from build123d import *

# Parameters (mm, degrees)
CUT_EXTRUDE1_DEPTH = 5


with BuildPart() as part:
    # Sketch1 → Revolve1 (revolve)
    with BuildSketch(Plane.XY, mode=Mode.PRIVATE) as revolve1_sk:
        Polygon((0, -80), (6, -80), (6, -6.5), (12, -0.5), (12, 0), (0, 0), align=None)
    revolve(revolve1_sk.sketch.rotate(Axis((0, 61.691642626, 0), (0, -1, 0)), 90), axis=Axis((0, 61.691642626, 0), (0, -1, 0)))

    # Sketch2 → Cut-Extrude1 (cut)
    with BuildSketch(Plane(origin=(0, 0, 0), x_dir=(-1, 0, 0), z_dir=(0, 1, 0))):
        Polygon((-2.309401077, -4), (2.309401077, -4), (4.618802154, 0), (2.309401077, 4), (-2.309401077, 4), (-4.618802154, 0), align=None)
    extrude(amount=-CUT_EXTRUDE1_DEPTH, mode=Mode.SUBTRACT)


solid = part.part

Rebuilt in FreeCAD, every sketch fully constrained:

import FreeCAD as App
import Part
import Sketcher
Q = App.Units.Quantity


def add_polygon(sketch, points):
    """Adds a closed chain of lines whose ends are joined by coincident constraints."""
    first, n = sketch.GeometryCount, len(points)
    for a, b in zip(points, points[1:] + points[:1]):
        sketch.addGeometry(Part.LineSegment(App.Vector(*a, 0), App.Vector(*b, 0)), False)
    for i in range(n):
        sketch.addConstraint(Sketcher.Constraint("Coincident", first + i, 2, first + (i + 1) % n, 1))

doc = App.newDocument("Part")
params = doc.addObject("Spreadsheet::Sheet", "Params")
for row, (alias, value) in enumerate([
    ("sketch1_width", "6 mm"),
    ("sketch1_width2", "12 mm"),
    ("sketch1_height", "80 mm"),
    ("sketch1_height2", "73.5 mm"),
    ("revolution_angle", "360 deg"),
    ("pocket1_length", "5 mm"),
], start=1):
    params.set(f"A{row}", alias)
    params.set(f"B{row}", "=" + value)
    params.setAlias(f"B{row}", alias)

body = doc.addObject("PartDesign::Body", "Body")

# Sketch on XY plane
sketch1 = doc.addObject("Sketcher::SketchObject", "Sketch")
body.addObject(sketch1)
sketch1.AttachmentSupport = (doc.XY_Plane, [""])
sketch1.MapMode = "FlatFace"
add_polygon(sketch1, [(0, -80), (6, -80), (6, -6.5), (12, -0.5), (12, 0), (0, 0)])  # lines 0-5
sketch1.addConstraint(Sketcher.Constraint("Horizontal", 0))
sketch1.addConstraint(Sketcher.Constraint("Vertical", 1))
sketch1.addConstraint(Sketcher.Constraint("Vertical", 3))
sketch1.addConstraint(Sketcher.Constraint("Horizontal", 4))
sketch1.addConstraint(Sketcher.Constraint("Vertical", 5))
sketch1.addConstraint(Sketcher.Constraint("Coincident", 4, 2, -1, 1))
sketch1.addConstraint(Sketcher.Constraint("DistanceX", 0, 1, 0, 2, Q("6 mm")))
sketch1.addConstraint(Sketcher.Constraint("DistanceX", 4, 2, 4, 1, Q("12 mm")))
sketch1.addConstraint(Sketcher.Constraint("DistanceY", 5, 2, 5, 1, Q("80 mm")))
sketch1.addConstraint(Sketcher.Constraint("Angle", 2, Q("45 deg")))
sketch1.addConstraint(Sketcher.Constraint("DistanceY", 1, 1, 1, 2, Q("73.5 mm")))
sketch1.setExpression("Constraints[12]", "Params.sketch1_width")
sketch1.setExpression("Constraints[13]", "Params.sketch1_width2")
sketch1.setExpression("Constraints[14]", "Params.sketch1_height")
sketch1.setExpression("Constraints[16]", "Params.sketch1_height2")
revolution = doc.addObject("PartDesign::Revolution", "Revolution")
body.addObject(revolution)
revolution.Profile = sketch1
revolution.ReferenceAxis = (sketch1, ["V_Axis"])
revolution.setExpression("Angle", "Params.revolution_angle")

# Sketch on XZ plane
sketch2 = doc.addObject("Sketcher::SketchObject", "Sketch001")
body.addObject(sketch2)
sketch2.AttachmentSupport = (doc.XZ_Plane, [""])
sketch2.MapMode = "FlatFace"
add_polygon(sketch2, [(2.3, -4), (-2.3, -4), (-4.6, 0), (-2.3, 4), (2.3, 4), (4.6, 0)])  # lines 0-5
sketch2.addConstraint(Sketcher.Constraint("Horizontal", 0))
sketch2.addConstraint(Sketcher.Constraint("Horizontal", 3))
sketch2.addConstraint(Sketcher.Constraint("Symmetric", 0, 2, 3, 2, -1, 1))
sketch2.addConstraint(Sketcher.Constraint("Symmetric", 1, 2, 4, 2, -1, 1))
sketch2.addConstraint(Sketcher.Constraint("PointOnObject", 1, 2, -1))
sketch2.addConstraint(Sketcher.Constraint("Parallel", 2, 5))
sketch2.addConstraint(Sketcher.Constraint("Vertical", 0, 2, 2, 2))
sketch2.addConstraint(Sketcher.Constraint("Angle", 1, Q("120 deg")))
sketch2.addConstraint(Sketcher.Constraint("DistanceY", 0, 2, -1, 1, Q("4 mm")))
sketch2.addConstraint(Sketcher.Constraint("DistanceX", 0, 2, -1, 1, Q("2.309401 mm")))
pocket1 = doc.addObject("PartDesign::Pocket", "Pocket")
body.addObject(pocket1)
pocket1.Profile = sketch2
pocket1.setExpression("Length", "Params.pocket1_length")
pocket1.Reversed = True

doc.recompute()
